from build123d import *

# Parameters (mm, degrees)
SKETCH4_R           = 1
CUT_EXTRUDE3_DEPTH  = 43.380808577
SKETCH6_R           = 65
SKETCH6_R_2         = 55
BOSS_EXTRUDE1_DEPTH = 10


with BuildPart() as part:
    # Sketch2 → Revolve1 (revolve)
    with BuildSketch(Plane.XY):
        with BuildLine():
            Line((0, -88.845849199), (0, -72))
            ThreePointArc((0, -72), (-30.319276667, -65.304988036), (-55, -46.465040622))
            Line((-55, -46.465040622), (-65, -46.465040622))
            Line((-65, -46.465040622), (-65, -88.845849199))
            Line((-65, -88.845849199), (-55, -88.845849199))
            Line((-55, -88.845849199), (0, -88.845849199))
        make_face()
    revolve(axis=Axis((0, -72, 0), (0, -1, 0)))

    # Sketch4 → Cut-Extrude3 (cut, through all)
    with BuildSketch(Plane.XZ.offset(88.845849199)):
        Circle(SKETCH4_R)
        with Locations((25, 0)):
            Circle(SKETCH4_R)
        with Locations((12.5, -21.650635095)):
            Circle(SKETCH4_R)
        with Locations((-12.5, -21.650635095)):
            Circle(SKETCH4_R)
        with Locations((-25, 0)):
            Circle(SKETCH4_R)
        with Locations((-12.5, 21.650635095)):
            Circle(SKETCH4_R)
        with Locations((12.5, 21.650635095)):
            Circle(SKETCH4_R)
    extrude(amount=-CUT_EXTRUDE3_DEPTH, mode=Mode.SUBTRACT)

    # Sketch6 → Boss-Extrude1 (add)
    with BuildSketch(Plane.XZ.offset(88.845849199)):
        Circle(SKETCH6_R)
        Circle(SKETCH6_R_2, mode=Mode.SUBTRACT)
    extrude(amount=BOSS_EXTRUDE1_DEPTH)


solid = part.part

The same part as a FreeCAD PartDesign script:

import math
import FreeCAD as App
import Part
import Sketcher

V = App.Vector

doc = App.newDocument("Part")
body = doc.addObject("PartDesign::Body", "Body")

# Sketch on XY plane
sketch1 = doc.addObject("Sketcher::SketchObject", "Sketch")
body.addObject(sketch1)
sketch1.AttachmentSupport = (doc.XY_Plane, [""])
sketch1.MapMode = "FlatFace"
sketch1.addGeometry([
    Part.LineSegment(V(0, -88.845849, 0), V(0, -72, 0)),  # 0
    Part.ArcOfCircle(Part.Circle(V(0, 0, 0), V(0, 0, 1), 72), math.radians(-139.808244), math.radians(-90)),  # 1
    Part.LineSegment(V(-55, -46.465041, 0), V(-65, -46.465041, 0)),  # 2
    Part.LineSegment(V(-65, -46.465041, 0), V(-65, -88.845849, 0)),  # 3
    Part.LineSegment(V(-65, -88.845849, 0), V(0, -88.845849, 0)),  # 4
], False)
sketch1.addConstraint([
    Sketcher.Constraint("Coincident", 0, 2, 1, 2),
    Sketcher.Constraint("Coincident", 1, 1, 2, 1),
    Sketcher.Constraint("Coincident", 2, 2, 3, 1),
    Sketcher.Constraint("Coincident", 3, 2, 4, 1),
    Sketcher.Constraint("Coincident", 4, 2, 0, 1),
    Sketcher.Constraint("Vertical", 0),
    Sketcher.Constraint("Horizontal", 2),
    Sketcher.Constraint("Vertical", 3),
    Sketcher.Constraint("Horizontal", 4),
    Sketcher.Constraint("Coincident", 1, 3, -1, 1),
    Sketcher.Constraint("PointOnObject", 0, 2, -2),
    Sketcher.Constraint("Radius", 1, 72.0),
    Sketcher.Constraint("DistanceX", 2, 2, 2, 1, 10.0),
    Sketcher.Constraint("DistanceX", 4, 1, 4, 2, 65.0),
    Sketcher.Constraint("DistanceY", 0, 1, 0, 2, 16.845849),
])
revolution = doc.addObject("PartDesign::Revolution", "Revolution")
body.addObject(revolution)
revolution.Profile = sketch1
revolution.ReferenceAxis = (sketch1, ["V_Axis"])
revolution.Angle = 360

# Sketch on XZ plane
sketch2 = doc.addObject("Sketcher::SketchObject", "Sketch001")
body.addObject(sketch2)
sketch2.AttachmentSupport = (doc.XZ_Plane, [""])
sketch2.MapMode = "FlatFace"
sketch2.AttachmentOffset = App.Placement(V(0, 0, 88.845849), App.Rotation())
sketch2.addGeometry([
    Part.Circle(V(0, 0, 0), V(0, 0, 1), 1),  # 0
    Part.Circle(V(25, 0, 0), V(0, 0, 1), 1),  # 1
    Part.Circle(V(12.5, -21.650635, 0), V(0, 0, 1), 1),  # 2
    Part.Circle(V(-12.5, -21.650635, 0), V(0, 0, 1), 1),  # 3
    Part.Circle(V(-25, 0, 0), V(0, 0, 1), 1),  # 4
    Part.Circle(V(-12.5, 21.650635, 0), V(0, 0, 1), 1),  # 5
    Part.Circle(V(12.5, 21.650635, 0), V(0, 0, 1), 1),  # 6
], False)
sketch2.addConstraint([
    Sketcher.Constraint("Coincident", 0, 3, -1, 1),
    Sketcher.Constraint("Equal", 0, 1),
    Sketcher.Constraint("Equal", 1, 2),
    Sketcher.Constraint("Equal", 2, 3),
    Sketcher.Constraint("Equal", 3, 4),
    Sketcher.Constraint("Equal", 4, 5),
    Sketcher.Constraint("Equal", 5, 6),
    Sketcher.Constraint("Symmetric", 1, 3, 4, 3, -1, 1),
    Sketcher.Constraint("Symmetric", 2, 3, 5, 3, -1, 1),
    Sketcher.Constraint("Symmetric", 3, 3, 6, 3, -1, 1),
    Sketcher.Constraint("Symmetric", 2, 3, 3, 3, -2),
    Sketcher.Constraint("PointOnObject", 1, 3, -1),
    Sketcher.Constraint("Diameter", 0, 2.0),
    Sketcher.Constraint("DistanceX", -1, 1, 1, 3, 25.0),
    Sketcher.Constraint("DistanceX", 3, 3, 2, 3, 25.0),
    Sketcher.Constraint("DistanceY", 3, 3, 5, 3, 43.30127),
])
pocket1 = doc.addObject("PartDesign::Pocket", "Pocket")
body.addObject(pocket1)
pocket1.Profile = sketch2
pocket1.Type = "ThroughAll"

# Sketch on XZ plane
sketch3 = doc.addObject("Sketcher::SketchObject", "Sketch002")
body.addObject(sketch3)
sketch3.AttachmentSupport = (doc.XZ_Plane, [""])
sketch3.MapMode = "FlatFace"
sketch3.AttachmentOffset = App.Placement(V(0, 0, 88.845849), App.Rotation())
sketch3.addGeometry([
    Part.Circle(V(0, 0, 0), V(0, 0, 1), 65),
    Part.Circle(V(0, 0, 0), V(0, 0, 1), 55),
], False)
sketch3.addConstraint([
    Sketcher.Constraint("Coincident", 0, 3, -1, 1),
    Sketcher.Constraint("Coincident", 1, 3, -1, 1),
    Sketcher.Constraint("Diameter", 0, 130.0),
    Sketcher.Constraint("Diameter", 1, 110.0),
])
pad1 = doc.addObject("PartDesign::Pad", "Pad")
body.addObject(pad1)
pad1.Profile = sketch3
pad1.Length = 10

doc.recompute()
